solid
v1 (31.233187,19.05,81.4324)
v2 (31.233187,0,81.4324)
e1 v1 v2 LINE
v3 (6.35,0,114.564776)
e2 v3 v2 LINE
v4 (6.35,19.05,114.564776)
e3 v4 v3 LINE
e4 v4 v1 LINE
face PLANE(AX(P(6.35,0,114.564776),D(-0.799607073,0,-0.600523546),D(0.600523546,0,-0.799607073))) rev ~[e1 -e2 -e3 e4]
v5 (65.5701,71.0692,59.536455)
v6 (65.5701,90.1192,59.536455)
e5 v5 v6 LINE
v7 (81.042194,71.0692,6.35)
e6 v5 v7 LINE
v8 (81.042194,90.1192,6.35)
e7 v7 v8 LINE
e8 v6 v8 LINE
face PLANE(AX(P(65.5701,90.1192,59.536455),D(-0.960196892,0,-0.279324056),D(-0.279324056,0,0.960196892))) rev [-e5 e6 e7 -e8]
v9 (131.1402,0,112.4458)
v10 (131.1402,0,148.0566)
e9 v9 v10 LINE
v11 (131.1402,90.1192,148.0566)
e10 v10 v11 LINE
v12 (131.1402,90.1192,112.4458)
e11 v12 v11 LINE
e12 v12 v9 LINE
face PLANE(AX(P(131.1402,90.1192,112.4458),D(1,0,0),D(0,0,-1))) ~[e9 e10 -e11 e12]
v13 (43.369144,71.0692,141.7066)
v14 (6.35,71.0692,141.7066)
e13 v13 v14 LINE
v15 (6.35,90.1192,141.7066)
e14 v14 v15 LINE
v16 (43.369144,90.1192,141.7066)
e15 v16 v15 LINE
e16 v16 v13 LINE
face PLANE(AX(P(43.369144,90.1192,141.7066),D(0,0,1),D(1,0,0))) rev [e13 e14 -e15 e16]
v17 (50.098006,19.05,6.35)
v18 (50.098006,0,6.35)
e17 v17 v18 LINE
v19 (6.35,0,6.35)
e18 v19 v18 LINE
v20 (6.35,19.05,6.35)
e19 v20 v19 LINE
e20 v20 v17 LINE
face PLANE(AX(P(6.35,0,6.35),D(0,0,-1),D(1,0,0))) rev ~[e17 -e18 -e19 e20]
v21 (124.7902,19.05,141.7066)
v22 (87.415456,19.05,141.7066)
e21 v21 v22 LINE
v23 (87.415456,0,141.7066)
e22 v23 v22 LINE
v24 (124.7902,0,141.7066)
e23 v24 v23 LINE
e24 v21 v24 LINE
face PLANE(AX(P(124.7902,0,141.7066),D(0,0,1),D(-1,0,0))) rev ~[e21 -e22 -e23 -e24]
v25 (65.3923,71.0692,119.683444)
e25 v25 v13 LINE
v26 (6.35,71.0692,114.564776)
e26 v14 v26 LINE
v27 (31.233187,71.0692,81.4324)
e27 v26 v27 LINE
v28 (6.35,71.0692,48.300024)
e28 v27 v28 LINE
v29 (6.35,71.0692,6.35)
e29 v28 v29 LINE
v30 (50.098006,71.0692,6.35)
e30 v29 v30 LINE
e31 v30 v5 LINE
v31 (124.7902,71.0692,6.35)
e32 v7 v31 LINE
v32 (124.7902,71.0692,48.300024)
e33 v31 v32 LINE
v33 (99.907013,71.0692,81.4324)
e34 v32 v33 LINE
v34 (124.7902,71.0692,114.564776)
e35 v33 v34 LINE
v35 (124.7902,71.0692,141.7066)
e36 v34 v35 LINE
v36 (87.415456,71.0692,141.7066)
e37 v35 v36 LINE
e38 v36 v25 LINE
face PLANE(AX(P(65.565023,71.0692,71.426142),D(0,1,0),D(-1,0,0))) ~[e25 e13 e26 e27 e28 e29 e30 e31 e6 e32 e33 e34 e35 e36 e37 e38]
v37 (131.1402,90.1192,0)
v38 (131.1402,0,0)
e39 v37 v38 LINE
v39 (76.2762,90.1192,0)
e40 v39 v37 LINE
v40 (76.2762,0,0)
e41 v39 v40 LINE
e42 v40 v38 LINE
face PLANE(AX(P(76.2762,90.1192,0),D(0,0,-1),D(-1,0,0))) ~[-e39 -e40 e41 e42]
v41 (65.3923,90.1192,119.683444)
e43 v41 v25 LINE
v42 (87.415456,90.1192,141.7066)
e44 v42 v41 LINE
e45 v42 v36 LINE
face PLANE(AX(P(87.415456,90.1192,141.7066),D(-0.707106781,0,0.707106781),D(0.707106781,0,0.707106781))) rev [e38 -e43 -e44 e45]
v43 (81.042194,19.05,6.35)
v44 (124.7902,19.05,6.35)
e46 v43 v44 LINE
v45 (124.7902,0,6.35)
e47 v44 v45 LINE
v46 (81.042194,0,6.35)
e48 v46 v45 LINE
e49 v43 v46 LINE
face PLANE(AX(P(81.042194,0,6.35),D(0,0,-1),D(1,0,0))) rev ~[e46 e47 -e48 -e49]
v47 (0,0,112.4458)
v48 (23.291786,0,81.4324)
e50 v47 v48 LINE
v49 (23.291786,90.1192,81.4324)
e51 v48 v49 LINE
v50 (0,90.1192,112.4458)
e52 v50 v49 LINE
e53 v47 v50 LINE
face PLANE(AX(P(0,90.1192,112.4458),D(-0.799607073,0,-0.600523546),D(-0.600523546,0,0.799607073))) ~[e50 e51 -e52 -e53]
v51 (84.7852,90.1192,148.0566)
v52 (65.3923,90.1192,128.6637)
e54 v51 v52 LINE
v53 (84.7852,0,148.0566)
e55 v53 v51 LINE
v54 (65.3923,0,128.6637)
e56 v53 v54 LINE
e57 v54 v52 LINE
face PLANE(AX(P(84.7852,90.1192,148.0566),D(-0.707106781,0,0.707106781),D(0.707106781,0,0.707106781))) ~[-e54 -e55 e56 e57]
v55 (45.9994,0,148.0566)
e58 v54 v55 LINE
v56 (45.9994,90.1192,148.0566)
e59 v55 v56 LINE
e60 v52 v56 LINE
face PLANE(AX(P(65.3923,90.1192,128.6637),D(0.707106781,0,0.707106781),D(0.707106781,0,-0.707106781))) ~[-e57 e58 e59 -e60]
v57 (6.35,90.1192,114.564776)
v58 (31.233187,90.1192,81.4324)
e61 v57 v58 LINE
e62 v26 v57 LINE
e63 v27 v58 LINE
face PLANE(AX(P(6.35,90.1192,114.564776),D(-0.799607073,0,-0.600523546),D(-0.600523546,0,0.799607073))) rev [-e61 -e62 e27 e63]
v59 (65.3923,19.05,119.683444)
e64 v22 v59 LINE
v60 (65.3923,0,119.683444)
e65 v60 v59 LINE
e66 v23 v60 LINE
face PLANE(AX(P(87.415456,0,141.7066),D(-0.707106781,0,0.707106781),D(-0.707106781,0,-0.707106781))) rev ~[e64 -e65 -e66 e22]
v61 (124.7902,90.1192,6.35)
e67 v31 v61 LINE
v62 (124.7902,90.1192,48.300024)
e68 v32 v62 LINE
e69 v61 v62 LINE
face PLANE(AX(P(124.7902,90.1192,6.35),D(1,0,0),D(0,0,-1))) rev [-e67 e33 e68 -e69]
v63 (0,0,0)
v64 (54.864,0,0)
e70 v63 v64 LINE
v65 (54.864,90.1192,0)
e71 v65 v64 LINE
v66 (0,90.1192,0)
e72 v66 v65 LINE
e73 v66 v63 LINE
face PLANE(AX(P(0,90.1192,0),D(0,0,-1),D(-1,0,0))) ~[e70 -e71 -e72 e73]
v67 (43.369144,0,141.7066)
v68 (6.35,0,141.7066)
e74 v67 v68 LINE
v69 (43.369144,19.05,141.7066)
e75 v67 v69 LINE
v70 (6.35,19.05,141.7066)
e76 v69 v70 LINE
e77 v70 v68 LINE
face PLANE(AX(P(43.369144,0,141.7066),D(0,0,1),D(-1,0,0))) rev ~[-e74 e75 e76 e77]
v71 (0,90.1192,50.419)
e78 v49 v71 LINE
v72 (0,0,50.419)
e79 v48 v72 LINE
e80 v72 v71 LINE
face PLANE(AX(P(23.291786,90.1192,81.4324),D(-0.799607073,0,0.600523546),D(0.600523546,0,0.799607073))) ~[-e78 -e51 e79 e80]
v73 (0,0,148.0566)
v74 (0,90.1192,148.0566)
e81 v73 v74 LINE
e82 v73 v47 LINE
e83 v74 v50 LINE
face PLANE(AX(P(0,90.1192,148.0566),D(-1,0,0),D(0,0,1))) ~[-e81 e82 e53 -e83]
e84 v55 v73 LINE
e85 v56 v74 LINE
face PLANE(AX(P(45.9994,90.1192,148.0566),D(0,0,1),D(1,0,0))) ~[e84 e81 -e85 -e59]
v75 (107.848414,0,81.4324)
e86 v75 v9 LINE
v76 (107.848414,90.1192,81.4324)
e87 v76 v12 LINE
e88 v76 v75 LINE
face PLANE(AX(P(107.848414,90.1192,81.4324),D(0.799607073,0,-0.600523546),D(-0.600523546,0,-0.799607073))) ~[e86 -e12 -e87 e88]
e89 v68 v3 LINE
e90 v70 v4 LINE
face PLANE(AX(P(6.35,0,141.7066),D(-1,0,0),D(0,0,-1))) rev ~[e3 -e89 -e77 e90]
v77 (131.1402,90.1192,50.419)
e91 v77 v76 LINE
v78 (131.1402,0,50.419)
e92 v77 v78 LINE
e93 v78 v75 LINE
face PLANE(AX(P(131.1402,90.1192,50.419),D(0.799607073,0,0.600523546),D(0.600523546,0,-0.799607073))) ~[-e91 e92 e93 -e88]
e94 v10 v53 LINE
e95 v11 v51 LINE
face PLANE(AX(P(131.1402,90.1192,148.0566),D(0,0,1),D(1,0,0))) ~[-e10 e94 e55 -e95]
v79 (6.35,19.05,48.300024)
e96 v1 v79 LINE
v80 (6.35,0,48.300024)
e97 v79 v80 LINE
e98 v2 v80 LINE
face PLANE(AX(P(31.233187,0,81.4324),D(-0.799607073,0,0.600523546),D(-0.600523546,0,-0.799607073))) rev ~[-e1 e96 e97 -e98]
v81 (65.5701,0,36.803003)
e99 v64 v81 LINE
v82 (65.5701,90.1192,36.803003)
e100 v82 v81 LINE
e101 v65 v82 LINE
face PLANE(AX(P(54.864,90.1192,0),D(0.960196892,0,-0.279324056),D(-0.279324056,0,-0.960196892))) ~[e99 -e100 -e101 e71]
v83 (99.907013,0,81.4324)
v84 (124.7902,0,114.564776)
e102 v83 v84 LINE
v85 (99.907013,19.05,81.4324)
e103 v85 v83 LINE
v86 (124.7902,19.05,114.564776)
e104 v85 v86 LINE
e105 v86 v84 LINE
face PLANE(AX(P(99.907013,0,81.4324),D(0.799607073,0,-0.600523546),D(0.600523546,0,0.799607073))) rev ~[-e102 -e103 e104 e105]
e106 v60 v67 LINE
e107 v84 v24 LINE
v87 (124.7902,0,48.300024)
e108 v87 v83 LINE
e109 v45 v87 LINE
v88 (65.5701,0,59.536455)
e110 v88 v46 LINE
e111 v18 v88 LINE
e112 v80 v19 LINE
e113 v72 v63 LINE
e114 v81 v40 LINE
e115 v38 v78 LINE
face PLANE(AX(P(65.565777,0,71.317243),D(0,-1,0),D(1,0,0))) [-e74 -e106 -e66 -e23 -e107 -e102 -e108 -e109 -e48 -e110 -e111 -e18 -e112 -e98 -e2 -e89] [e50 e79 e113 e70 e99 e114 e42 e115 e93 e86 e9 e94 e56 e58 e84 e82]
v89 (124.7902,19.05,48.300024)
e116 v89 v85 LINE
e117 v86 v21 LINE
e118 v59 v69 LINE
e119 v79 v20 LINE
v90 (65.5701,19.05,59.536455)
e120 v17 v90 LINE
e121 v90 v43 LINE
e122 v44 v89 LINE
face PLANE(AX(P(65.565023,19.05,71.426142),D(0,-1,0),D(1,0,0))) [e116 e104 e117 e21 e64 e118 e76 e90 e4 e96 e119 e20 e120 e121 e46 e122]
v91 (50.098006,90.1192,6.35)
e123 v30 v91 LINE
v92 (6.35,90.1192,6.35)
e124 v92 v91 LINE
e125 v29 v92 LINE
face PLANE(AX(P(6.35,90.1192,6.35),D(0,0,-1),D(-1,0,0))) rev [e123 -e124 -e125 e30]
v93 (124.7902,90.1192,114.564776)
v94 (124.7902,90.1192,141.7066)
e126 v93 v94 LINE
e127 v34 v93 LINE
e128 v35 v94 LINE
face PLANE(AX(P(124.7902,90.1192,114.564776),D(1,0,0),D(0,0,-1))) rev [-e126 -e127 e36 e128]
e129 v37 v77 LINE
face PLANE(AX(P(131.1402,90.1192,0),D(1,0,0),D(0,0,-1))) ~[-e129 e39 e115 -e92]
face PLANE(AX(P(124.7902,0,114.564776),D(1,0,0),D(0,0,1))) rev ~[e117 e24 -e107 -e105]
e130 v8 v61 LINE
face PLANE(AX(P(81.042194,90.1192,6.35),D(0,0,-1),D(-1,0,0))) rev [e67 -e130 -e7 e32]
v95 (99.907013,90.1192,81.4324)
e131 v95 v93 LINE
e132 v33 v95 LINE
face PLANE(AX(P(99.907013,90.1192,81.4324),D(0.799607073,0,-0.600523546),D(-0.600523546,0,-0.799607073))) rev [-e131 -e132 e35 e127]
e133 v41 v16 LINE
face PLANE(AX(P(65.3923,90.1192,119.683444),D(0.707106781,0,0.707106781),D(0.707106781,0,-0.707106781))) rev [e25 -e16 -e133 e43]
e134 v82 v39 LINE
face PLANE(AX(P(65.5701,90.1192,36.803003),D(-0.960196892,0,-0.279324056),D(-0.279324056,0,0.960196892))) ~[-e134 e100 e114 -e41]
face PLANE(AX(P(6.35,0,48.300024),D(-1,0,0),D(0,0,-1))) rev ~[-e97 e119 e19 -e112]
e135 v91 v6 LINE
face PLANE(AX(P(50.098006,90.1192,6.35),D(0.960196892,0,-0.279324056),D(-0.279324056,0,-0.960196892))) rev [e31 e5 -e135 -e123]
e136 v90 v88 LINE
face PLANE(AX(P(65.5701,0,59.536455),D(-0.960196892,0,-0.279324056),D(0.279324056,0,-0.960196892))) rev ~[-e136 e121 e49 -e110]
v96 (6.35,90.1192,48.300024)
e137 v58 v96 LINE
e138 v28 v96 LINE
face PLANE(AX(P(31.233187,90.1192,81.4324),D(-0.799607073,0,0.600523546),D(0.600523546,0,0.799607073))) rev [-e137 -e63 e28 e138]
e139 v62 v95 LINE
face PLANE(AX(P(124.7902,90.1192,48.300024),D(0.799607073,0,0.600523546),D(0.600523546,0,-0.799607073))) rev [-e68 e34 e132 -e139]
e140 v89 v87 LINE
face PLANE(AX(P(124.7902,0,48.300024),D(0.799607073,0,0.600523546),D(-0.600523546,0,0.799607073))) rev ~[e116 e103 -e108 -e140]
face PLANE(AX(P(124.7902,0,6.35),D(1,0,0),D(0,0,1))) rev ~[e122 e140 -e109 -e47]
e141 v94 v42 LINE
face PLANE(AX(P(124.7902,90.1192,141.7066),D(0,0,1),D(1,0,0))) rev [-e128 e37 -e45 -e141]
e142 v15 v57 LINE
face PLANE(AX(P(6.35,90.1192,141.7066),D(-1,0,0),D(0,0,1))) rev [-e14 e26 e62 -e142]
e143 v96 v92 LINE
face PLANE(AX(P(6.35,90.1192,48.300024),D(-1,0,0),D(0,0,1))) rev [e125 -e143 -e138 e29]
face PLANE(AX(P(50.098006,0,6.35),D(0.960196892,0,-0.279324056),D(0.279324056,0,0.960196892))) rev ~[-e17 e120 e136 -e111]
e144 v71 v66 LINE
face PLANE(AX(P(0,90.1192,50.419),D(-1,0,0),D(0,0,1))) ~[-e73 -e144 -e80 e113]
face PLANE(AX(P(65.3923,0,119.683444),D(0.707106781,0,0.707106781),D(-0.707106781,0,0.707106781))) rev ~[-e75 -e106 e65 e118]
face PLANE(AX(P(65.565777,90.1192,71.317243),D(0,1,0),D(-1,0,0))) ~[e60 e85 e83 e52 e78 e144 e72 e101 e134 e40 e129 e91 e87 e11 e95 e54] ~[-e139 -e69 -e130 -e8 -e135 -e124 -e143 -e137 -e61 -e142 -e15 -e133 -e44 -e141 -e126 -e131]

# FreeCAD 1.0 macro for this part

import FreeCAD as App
import Part
import Sketcher
from FreeCAD import Vector
Q = App.Units.Quantity

doc = App.newDocument("Part")
body = doc.addObject("PartDesign::Body", "Body")

# Sketch on XZ plane
sketch1 = doc.addObject("Sketcher::SketchObject", "Sketch")
body.addObject(sketch1)
sketch1.AttachmentSupport = (doc.XZ_Plane, [""])
sketch1.MapMode = "FlatFace"
sketch1.addGeometry([
    Part.LineSegment(Vector(0, 50, 0), Vector(0, 0, 0)),  # 0
    Part.LineSegment(Vector(0, 0, 0), Vector(55, 0, 0)),  # 1
    Part.LineSegment(Vector(55, 0, 0), Vector(66, 37, 0)),  # 2
    Part.LineSegment(Vector(66, 37, 0), Vector(76, 0, 0)),  # 3
    Part.LineSegment(Vector(76, 0, 0), Vector(131, 0, 0)),  # 4
    Part.LineSegment(Vector(131, 0, 0), Vector(131, 50, 0)),  # 5
    Part.LineSegment(Vector(131, 50, 0), Vector(108, 81, 0)),  # 6
    Part.LineSegment(Vector(108, 81, 0), Vector(131, 112, 0)),  # 7
    Part.LineSegment(Vector(131, 112, 0), Vector(131, 148, 0)),  # 8
    Part.LineSegment(Vector(131, 148, 0), Vector(85, 148, 0)),  # 9
    Part.LineSegment(Vector(85, 148, 0), Vector(65, 129, 0)),  # 10
    Part.LineSegment(Vector(65, 129, 0), Vector(46, 148, 0)),  # 11
    Part.LineSegment(Vector(46, 148, 0), Vector(0, 148, 0)),  # 12
    Part.LineSegment(Vector(0, 148, 0), Vector(0, 112, 0)),  # 13
    Part.LineSegment(Vector(0, 112, 0), Vector(23, 81, 0)),  # 14
    Part.LineSegment(Vector(23, 81, 0), Vector(0, 50, 0)),  # 15
], False)
sketch1.addConstraint([
    Sketcher.Constraint("Coincident", 0, 2, 1, 1),
    Sketcher.Constraint("Coincident", 1, 2, 2, 1),
    Sketcher.Constraint("Coincident", 2, 2, 3, 1),
    Sketcher.Constraint("Coincident", 3, 2, 4, 1),
    Sketcher.Constraint("Coincident", 4, 2, 5, 1),
    Sketcher.Constraint("Coincident", 5, 2, 6, 1),
    Sketcher.Constraint("Coincident", 6, 2, 7, 1),
    Sketcher.Constraint("Coincident", 7, 2, 8, 1),
    Sketcher.Constraint("Coincident", 8, 2, 9, 1),
    Sketcher.Constraint("Coincident", 9, 2, 10, 1),
    Sketcher.Constraint("Coincident", 10, 2, 11, 1),
    Sketcher.Constraint("Coincident", 11, 2, 12, 1),
    Sketcher.Constraint("Coincident", 12, 2, 13, 1),
    Sketcher.Constraint("Coincident", 13, 2, 14, 1),
    Sketcher.Constraint("Coincident", 14, 2, 15, 1),
    Sketcher.Constraint("Coincident", 15, 2, 0, 1),
    Sketcher.Constraint("Vertical", 0),
    Sketcher.Constraint("Horizontal", 1),
    Sketcher.Constraint("Horizontal", 4),
    Sketcher.Constraint("Vertical", 5),
    Sketcher.Constraint("Vertical", 8),
    Sketcher.Constraint("Horizontal", 9),
    Sketcher.Constraint("Horizontal", 12),
    Sketcher.Constraint("Vertical", 13),
    Sketcher.Constraint("Coincident", 0, 2, -1, 1),
    Sketcher.Constraint("PointOnObject", 3, 2, -1),
    Sketcher.Constraint("PointOnObject", 12, 2, -2),
    Sketcher.Constraint("Perpendicular", 10, 11),
    Sketcher.Constraint("Parallel", 6, 14),
    Sketcher.Constraint("Parallel", 7, 15),
    Sketcher.Constraint("Horizontal", 9, 2, 11, 2),
    Sketcher.Constraint("Horizontal", 7, 2, 13, 2),
    Sketcher.Constraint("Horizontal", 6, 2, 14, 2),
    Sketcher.Constraint("Horizontal", 5, 2, 15, 2),
    Sketcher.Constraint("Vertical", 5, 2, 7, 2),
    Sketcher.Constraint("Equal", 1, 4),
    Sketcher.Constraint("Equal", 2, 3),
    Sketcher.Constraint("Equal", 10, 11),
    Sketcher.Constraint("DistanceX", 1, 1, 1, 2, Q("2.16 in")),
    Sketcher.Constraint("DistanceX", 9, 2, 9, 1, Q("1.825 in")),
    Sketcher.Constraint("DistanceX", 12, 2, 12, 1, Q("1.811 in")),
    Sketcher.Constraint("DistanceY", 0, 2, 0, 1, Q("1.985 in")),
    Sketcher.Constraint("DistanceY", 8, 1, 8, 2, Q("1.402 in")),
    Sketcher.Constraint("Distance", 2, Q("1.509 in")),
    Sketcher.Constraint("Distance", 6, Q("1.527 in")),
    Sketcher.Constraint("DistanceX", -1, 1, 3, 2, Q("3.003 in")),
    Sketcher.Constraint("DistanceY", -1, 1, 6, 2, Q("3.206 in")),
])
pad1 = doc.addObject("PartDesign::Pad", "Pad")
body.addObject(pad1)
pad1.Profile = sketch1
pad1.Length = Q("1.774 in")
pad1.Reversed = True

# Sketch on XZ plane
sketch2 = doc.addObject("Sketcher::SketchObject", "Sketch001")
body.addObject(sketch2)
sketch2.AttachmentSupport = (doc.XZ_Plane, [""])
sketch2.MapMode = "FlatFace"
sketch2.addGeometry([
    Part.LineSegment(Vector(43, 142, 0), Vector(6, 142, 0)),  # 0
    Part.LineSegment(Vector(6, 142, 0), Vector(6, 115, 0)),  # 1
    Part.LineSegment(Vector(6, 115, 0), Vector(31, 81, 0)),  # 2
    Part.LineSegment(Vector(31, 81, 0), Vector(6, 48, 0)),  # 3
    Part.LineSegment(Vector(6, 48, 0), Vector(6, 6, 0)),  # 4
    Part.LineSegment(Vector(6, 6, 0), Vector(50, 6, 0)),  # 5
    Part.LineSegment(Vector(50, 6, 0), Vector(66, 60, 0)),  # 6
    Part.LineSegment(Vector(66, 60, 0), Vector(81, 6, 0)),  # 7
    Part.LineSegment(Vector(81, 6, 0), Vector(125, 6, 0)),  # 8
    Part.LineSegment(Vector(125, 6, 0), Vector(125, 48, 0)),  # 9
    Part.LineSegment(Vector(125, 48, 0), Vector(100, 81, 0)),  # 10
    Part.LineSegment(Vector(100, 81, 0), Vector(125, 115, 0)),  # 11
    Part.LineSegment(Vector(125, 115, 0), Vector(125, 142, 0)),  # 12
    Part.LineSegment(Vector(125, 142, 0), Vector(87, 142, 0)),  # 13
    Part.LineSegment(Vector(87, 142, 0), Vector(65, 120, 0)),  # 14
    Part.LineSegment(Vector(65, 120, 0), Vector(43, 142, 0)),  # 15
], False)
sketch2.addConstraint([
    Sketcher.Constraint("Coincident", 0, 2, 1, 1),
    Sketcher.Constraint("Coincident", 1, 2, 2, 1),
    Sketcher.Constraint("Coincident", 2, 2, 3, 1),
    Sketcher.Constraint("Coincident", 3, 2, 4, 1),
    Sketcher.Constraint("Coincident", 4, 2, 5, 1),
    Sketcher.Constraint("Coincident", 5, 2, 6, 1),
    Sketcher.Constraint("Coincident", 6, 2, 7, 1),
    Sketcher.Constraint("Coincident", 7, 2, 8, 1),
    Sketcher.Constraint("Coincident", 8, 2, 9, 1),
    Sketcher.Constraint("Coincident", 9, 2, 10, 1),
    Sketcher.Constraint("Coincident", 10, 2, 11, 1),
    Sketcher.Constraint("Coincident", 11, 2, 12, 1),
    Sketcher.Constraint("Coincident", 12, 2, 13, 1),
    Sketcher.Constraint("Coincident", 13, 2, 14, 1),
    Sketcher.Constraint("Coincident", 14, 2, 15, 1),
    Sketcher.Constraint("Coincident", 15, 2, 0, 1),
    Sketcher.Constraint("Horizontal", 0),
    Sketcher.Constraint("Vertical", 1),
    Sketcher.Constraint("Vertical", 4),
    Sketcher.Constraint("Horizontal", 5),
    Sketcher.Constraint("Horizontal", 8),
    Sketcher.Constraint("Vertical", 9),
    Sketcher.Constraint("Vertical", 12),
    Sketcher.Constraint("Horizontal", 13),
    Sketcher.Constraint("Parallel", 2, 10),
    Sketcher.Constraint("Parallel", 3, 11),
    Sketcher.Constraint("Perpendicular", 14, 15),
    Sketcher.Constraint("Horizontal", 5, 2, 7, 2),
    Sketcher.Constraint("Horizontal", 3, 2, 9, 2),
    Sketcher.Constraint("Horizontal", 2, 2, 10, 2),
    Sketcher.Constraint("Horizontal", 1, 2, 11, 2),
    Sketcher.Constraint("Horizontal", 0, 2, 12, 2),
    Sketcher.Constraint("Vertical", 1, 2, 3, 2),
    Sketcher.Constraint("Vertical", 9, 2, 11, 2),
    Sketcher.Constraint("Equal", 5, 8),
    Sketcher.Constraint("Equal", 6, 7),
    Sketcher.Constraint("Equal", 14, 15),
    Sketcher.Constraint("DistanceX", -1, 1, 0, 2, Q("0.25 in")),
    Sketcher.Constraint("DistanceY", -1, 1, 4, 2, Q("0.25 in")),
    Sketcher.Constraint("DistanceY", -1, 1, 0, 2, Q("5.579 in")),
    Sketcher.Constraint("DistanceY", -1, 1, 2, 2, Q("3.206 in")),
    Sketcher.Constraint("DistanceX", -1, 1, 8, 2, Q("4.913 in")),
    Sketcher.Constraint("DistanceX", -1, 1, 14, 2, Q("2.5745 in")),
    Sketcher.Constraint("Distance", 2, Q("41.435822 mm")),
    Sketcher.Constraint("DistanceX", 0, 2, 0, 1, Q("37.019144 mm")),
    Sketcher.Constraint("DistanceX", 5, 1, 5, 2, Q("43.748006 mm")),
    Sketcher.Constraint("DistanceY", 1, 2, 1, 1, Q("27.141824 mm")),
    Sketcher.Constraint("DistanceY", 3, 2, 6, 2, Q("11.236431 mm")),
])
pocket1 = doc.addObject("PartDesign::Pocket", "Pocket")
body.addObject(pocket1)
pocket1.Profile = sketch2
pocket1.Length = Q("1.5 in")
pocket1.Midplane = True
body2 = doc.addObject("PartDesign::Body", "Body001")
doc.recompute()

body2.BaseFeature = body
doc.recompute()

mirroring = doc.addObject("Part::Mirroring", "Mirroring")
mirroring.Source = body
mirroring.Base = Vector(65.573987, 45.0596, 73.343943)
mirroring.Normal = Vector(0, 1, 0)
body3 = doc.addObject("PartDesign::Body", "Body002")
body3.BaseFeature = mirroring
boolean = doc.addObject("PartDesign::Boolean", "Boolean")
body2.addObject(boolean)
boolean.Type = "Fuse"
boolean.addObjects([body3])
doc.recompute()
mirroring.Visibility = False

doc.recompute()
